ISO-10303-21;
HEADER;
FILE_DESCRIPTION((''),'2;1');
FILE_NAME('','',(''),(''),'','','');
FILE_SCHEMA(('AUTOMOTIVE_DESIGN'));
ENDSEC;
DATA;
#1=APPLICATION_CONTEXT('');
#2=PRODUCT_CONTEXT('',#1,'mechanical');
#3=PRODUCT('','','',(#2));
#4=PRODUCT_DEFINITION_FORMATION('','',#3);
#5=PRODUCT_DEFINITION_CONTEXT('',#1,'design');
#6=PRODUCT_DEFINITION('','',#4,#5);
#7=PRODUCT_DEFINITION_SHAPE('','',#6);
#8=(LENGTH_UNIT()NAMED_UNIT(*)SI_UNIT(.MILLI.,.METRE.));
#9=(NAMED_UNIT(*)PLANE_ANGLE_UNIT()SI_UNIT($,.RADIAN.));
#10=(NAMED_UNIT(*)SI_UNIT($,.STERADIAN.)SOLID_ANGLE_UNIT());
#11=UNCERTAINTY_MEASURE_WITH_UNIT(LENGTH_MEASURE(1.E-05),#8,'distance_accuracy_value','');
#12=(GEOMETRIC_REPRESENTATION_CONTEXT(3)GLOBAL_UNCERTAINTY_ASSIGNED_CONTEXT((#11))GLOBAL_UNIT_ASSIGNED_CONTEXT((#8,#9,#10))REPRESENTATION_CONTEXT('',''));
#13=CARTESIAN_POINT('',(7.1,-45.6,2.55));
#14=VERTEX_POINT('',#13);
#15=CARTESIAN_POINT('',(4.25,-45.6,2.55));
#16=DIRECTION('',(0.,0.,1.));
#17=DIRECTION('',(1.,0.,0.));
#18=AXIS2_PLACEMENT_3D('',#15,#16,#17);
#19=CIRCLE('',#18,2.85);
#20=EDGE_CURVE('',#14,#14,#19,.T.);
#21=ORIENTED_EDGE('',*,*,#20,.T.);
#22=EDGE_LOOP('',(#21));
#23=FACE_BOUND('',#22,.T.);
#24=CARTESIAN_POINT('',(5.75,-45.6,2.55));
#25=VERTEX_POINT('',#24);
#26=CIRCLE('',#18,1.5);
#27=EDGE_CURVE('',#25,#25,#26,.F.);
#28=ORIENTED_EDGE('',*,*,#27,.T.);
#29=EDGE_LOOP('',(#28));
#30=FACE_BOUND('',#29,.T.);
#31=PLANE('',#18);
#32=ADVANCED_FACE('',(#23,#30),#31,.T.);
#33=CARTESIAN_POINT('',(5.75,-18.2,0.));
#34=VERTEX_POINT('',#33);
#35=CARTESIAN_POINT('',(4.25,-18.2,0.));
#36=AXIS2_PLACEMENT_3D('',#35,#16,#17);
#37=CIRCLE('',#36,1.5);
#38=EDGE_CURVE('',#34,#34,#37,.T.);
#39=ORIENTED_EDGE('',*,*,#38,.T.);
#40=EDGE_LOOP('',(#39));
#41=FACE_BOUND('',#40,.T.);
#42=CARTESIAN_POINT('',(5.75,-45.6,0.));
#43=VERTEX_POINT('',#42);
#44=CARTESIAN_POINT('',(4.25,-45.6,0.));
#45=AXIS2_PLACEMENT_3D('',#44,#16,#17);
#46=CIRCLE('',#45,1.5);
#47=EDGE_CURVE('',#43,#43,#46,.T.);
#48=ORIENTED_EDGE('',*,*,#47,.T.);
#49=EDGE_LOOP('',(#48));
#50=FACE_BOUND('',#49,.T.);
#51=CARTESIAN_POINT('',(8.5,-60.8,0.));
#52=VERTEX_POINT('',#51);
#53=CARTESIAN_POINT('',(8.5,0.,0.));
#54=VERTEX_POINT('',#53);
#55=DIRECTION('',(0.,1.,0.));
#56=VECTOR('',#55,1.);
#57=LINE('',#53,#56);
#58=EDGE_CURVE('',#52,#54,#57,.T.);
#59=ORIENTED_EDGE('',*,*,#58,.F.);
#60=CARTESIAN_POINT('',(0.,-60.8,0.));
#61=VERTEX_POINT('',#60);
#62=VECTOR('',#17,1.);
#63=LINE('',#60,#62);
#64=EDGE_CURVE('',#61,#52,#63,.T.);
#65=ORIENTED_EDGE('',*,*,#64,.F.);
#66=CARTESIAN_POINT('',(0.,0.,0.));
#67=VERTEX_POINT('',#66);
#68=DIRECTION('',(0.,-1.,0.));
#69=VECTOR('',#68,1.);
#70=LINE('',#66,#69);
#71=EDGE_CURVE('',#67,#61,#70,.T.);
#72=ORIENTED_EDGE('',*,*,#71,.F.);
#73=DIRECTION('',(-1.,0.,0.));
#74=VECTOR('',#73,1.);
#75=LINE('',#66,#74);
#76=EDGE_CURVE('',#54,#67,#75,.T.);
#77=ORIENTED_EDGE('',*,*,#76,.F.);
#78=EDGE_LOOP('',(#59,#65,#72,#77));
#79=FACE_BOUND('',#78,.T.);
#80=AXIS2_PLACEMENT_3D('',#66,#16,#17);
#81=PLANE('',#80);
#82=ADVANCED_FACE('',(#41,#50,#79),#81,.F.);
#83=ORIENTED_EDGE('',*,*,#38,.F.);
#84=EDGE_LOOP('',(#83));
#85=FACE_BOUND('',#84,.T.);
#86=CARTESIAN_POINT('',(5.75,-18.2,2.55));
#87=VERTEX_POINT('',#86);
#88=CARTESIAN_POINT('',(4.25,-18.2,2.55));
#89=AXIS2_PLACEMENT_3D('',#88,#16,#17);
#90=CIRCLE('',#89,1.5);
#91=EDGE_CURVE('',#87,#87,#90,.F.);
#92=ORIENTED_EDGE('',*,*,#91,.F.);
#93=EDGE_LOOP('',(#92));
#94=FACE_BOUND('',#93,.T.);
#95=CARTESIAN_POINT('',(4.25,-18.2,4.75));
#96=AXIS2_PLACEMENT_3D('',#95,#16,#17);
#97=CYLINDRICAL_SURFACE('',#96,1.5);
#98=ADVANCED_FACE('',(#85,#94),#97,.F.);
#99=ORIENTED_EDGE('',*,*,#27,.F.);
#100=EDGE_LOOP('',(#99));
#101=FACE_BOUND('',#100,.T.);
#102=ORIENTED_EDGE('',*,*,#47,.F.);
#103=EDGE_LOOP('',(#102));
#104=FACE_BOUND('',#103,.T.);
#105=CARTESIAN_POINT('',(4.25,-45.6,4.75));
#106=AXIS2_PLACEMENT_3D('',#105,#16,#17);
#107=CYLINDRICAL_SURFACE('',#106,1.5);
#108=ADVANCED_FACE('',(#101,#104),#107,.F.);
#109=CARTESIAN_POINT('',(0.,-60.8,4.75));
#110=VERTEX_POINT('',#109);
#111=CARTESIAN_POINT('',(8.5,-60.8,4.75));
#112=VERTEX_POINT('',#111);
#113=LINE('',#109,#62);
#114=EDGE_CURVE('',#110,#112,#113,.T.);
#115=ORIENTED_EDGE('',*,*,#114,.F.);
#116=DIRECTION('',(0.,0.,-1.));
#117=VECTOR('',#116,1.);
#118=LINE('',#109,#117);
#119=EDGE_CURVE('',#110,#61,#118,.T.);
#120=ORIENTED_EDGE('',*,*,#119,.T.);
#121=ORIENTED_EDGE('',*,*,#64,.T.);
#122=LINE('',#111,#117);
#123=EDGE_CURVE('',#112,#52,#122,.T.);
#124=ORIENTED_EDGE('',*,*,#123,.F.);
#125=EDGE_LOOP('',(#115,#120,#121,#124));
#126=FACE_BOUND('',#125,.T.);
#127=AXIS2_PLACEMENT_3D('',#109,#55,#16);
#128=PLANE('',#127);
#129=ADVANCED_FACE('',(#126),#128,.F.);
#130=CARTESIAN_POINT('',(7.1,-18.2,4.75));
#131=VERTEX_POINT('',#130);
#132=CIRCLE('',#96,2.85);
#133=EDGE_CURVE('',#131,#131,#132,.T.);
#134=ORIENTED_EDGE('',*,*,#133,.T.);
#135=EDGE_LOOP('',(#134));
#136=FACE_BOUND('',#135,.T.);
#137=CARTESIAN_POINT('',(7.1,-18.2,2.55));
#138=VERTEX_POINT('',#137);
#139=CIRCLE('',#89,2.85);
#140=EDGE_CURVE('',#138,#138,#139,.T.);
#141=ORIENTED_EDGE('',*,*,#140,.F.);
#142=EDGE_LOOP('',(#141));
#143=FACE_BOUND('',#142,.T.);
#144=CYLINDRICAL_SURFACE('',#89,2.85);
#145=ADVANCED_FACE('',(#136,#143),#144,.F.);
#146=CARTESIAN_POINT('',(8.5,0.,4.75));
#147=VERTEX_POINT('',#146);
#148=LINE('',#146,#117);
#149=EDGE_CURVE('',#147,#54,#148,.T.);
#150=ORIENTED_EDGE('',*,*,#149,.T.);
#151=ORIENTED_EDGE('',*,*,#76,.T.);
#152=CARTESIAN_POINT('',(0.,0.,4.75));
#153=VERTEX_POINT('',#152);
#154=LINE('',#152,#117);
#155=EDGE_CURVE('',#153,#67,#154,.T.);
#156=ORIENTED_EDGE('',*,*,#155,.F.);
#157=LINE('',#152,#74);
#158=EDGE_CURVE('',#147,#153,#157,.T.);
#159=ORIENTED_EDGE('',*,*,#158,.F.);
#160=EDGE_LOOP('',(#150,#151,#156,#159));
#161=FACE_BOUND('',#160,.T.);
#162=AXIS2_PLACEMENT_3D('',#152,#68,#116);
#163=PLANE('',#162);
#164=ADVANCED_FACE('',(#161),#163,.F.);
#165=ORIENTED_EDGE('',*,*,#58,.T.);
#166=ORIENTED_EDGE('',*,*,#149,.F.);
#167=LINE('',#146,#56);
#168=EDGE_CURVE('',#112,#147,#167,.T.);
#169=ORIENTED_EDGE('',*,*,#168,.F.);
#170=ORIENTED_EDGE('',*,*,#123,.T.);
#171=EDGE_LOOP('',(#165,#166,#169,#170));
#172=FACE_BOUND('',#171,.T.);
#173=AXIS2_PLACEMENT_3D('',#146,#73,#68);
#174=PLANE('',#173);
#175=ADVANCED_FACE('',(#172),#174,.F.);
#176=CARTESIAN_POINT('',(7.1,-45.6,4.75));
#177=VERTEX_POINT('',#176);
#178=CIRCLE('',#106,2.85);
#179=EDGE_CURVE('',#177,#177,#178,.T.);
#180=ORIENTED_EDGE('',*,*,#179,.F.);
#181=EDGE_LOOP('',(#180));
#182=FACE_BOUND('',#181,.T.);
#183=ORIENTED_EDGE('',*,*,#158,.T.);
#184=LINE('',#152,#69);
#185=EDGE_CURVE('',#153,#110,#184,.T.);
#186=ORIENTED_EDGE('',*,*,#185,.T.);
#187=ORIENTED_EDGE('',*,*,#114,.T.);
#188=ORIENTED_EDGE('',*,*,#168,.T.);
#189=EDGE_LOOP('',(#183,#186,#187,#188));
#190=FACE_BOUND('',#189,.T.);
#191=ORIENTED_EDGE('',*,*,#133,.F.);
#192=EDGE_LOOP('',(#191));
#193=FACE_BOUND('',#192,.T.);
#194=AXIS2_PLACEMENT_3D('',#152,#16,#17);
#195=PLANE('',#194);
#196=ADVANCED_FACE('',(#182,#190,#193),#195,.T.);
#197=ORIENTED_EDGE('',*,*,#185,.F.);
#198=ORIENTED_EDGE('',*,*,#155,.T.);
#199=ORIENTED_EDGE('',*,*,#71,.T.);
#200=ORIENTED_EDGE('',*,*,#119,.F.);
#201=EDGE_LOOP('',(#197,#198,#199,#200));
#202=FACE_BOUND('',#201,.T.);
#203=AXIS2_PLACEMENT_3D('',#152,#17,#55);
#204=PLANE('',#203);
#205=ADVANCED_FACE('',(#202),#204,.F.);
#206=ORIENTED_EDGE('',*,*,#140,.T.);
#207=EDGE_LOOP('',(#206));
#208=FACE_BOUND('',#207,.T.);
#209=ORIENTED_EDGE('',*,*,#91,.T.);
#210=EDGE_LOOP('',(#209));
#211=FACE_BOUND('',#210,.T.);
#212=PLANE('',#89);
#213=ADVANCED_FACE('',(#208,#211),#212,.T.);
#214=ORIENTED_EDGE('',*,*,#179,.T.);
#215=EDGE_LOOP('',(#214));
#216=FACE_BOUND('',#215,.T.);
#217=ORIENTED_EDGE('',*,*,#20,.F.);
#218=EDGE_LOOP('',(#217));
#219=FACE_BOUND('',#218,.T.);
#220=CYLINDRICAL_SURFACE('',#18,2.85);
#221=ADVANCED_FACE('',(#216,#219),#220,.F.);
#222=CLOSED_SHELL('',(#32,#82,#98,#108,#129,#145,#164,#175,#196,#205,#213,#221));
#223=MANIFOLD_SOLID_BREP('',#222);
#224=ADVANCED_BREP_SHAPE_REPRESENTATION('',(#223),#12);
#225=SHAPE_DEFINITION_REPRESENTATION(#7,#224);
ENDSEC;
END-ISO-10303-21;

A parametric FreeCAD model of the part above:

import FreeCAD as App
import Part
import Sketcher

V = App.Vector

doc = App.newDocument("Part")
params = doc.addObject("Spreadsheet::Sheet", "Params")
for row, (alias, value) in enumerate([
    ("sketch1_width", "8.5 mm"),
    ("sketch1_height", "60.8 mm"),
    ("pad1_length", "4.75 mm"),
    ("sketch2_diameter", "3 mm"),
    ("hole_diameter", "3 mm"),
    ("hole_depth", "5 mm"),
    ("sketch3_diameter", "5.7 mm"),
    ("pocket1_length", "2.2 mm"),
], start=1):
    params.set(f"A{row}", alias)
    params.set(f"B{row}", "=" + value)
    params.setAlias(f"B{row}", alias)

body = doc.addObject("PartDesign::Body", "Body")

# Sketch on XY plane
sketch1 = body.newObject("Sketcher::SketchObject", "Sketch")
sketch1.AttachmentSupport = (doc.getObject("XY_Plane"), [""])
sketch1.MapMode = "FlatFace"
sketch1.addGeometry([
    Part.LineSegment(V(0, 0, 0), V(0, -60.8, 0)),
    Part.LineSegment(V(0, -60.8, 0), V(8.5, -60.8, 0)),
    Part.LineSegment(V(8.5, -60.8, 0), V(8.5, 0, 0)),
    Part.LineSegment(V(8.5, 0, 0), V(0, 0, 0)),
], False)
sketch1.addConstraint([
    Sketcher.Constraint("Coincident", 0, 2, 1, 1),
    Sketcher.Constraint("Coincident", 1, 2, 2, 1),
    Sketcher.Constraint("Coincident", 2, 2, 3, 1),
    Sketcher.Constraint("Coincident", 3, 2, 0, 1),
    Sketcher.Constraint("Vertical", 0),
    Sketcher.Constraint("Horizontal", 1),
    Sketcher.Constraint("Vertical", 2),
    Sketcher.Constraint("Horizontal", 3),
    Sketcher.Constraint("Coincident", 3, 2, -1, 1),
    Sketcher.Constraint("DistanceX", 1, 1, 1, 2, 8.5),
    Sketcher.Constraint("DistanceY", 0, 2, 0, 1, 60.8),
])
sketch1.setExpression("Constraints[9]", "Params.sketch1_width")
sketch1.setExpression("Constraints[10]", "Params.sketch1_height")
pad1 = body.newObject("PartDesign::Pad", "Pad")
pad1.Profile = sketch1
pad1.setExpression("Length", "Params.pad1_length")

# Sketch on XY plane
sketch2 = body.newObject("Sketcher::SketchObject", "Sketch001")
sketch2.AttachmentSupport = (doc.getObject("XY_Plane"), [""])
sketch2.MapMode = "FlatFace"
sketch2.AttachmentOffset = App.Placement(V(0, 0, 4.75), App.Rotation())
sketch2.addGeometry([
    Part.Circle(V(4.25, -18.2, 0), V(0, 0, 1), 1.5),
    Part.Circle(V(4.25, -45.6, 0), V(0, 0, 1), 1.5),
], False)
sketch2.addConstraint([
    Sketcher.Constraint("Equal", 0, 1),
    Sketcher.Constraint("Vertical", 0, 3, 1, 3),
    Sketcher.Constraint("Diameter", 0, 3.0),
    Sketcher.Constraint("DistanceY", 0, 3, -1, 1, 18.2),
    Sketcher.Constraint("DistanceY", 1, 3, -1, 1, 45.6),
    Sketcher.Constraint("DistanceX", -1, 1, 0, 3, 4.25),
])
sketch2.setExpression("Constraints[2]", "Params.sketch2_diameter")
doc.recompute()
hole = body.newObject("PartDesign::Hole", "Hole")
hole.Profile = sketch2
hole.ThreadType = "None"
hole.setExpression("Diameter", "Params.hole_diameter")
hole.DepthType = "Dimension"
hole.setExpression("Depth", "Params.hole_depth")
hole.DrillPoint = "Angled"
hole.DrillPointAngle = 118

# Sketch on XY plane
sketch3 = body.newObject("Sketcher::SketchObject", "Sketch002")
sketch3.AttachmentSupport = (doc.getObject("XY_Plane"), [""])
sketch3.MapMode = "FlatFace"
sketch3.AttachmentOffset = App.Placement(V(0, 0, 4.75), App.Rotation())
sketch3.addGeometry([
    Part.Circle(V(4.25, -18.2, 0), V(0, 0, 1), 2.85),
    Part.Circle(V(4.25, -45.6, 0), V(0, 0, 1), 2.85),
], False)
sketch3.addConstraint([
    Sketcher.Constraint("Equal", 0, 1),
    Sketcher.Constraint("Vertical", 0, 3, 1, 3),
    Sketcher.Constraint("Diameter", 0, 5.7),
    Sketcher.Constraint("DistanceY", 0, 3, -1, 1, 18.2),
    Sketcher.Constraint("DistanceY", 1, 3, -1, 1, 45.6),
    Sketcher.Constraint("DistanceX", -1, 1, 0, 3, 4.25),
])
sketch3.setExpression("Constraints[2]", "Params.sketch3_diameter")
pocket1 = body.newObject("PartDesign::Pocket", "Pocket")
pocket1.Profile = sketch3
pocket1.setExpression("Length", "Params.pocket1_length")

doc.recompute()
